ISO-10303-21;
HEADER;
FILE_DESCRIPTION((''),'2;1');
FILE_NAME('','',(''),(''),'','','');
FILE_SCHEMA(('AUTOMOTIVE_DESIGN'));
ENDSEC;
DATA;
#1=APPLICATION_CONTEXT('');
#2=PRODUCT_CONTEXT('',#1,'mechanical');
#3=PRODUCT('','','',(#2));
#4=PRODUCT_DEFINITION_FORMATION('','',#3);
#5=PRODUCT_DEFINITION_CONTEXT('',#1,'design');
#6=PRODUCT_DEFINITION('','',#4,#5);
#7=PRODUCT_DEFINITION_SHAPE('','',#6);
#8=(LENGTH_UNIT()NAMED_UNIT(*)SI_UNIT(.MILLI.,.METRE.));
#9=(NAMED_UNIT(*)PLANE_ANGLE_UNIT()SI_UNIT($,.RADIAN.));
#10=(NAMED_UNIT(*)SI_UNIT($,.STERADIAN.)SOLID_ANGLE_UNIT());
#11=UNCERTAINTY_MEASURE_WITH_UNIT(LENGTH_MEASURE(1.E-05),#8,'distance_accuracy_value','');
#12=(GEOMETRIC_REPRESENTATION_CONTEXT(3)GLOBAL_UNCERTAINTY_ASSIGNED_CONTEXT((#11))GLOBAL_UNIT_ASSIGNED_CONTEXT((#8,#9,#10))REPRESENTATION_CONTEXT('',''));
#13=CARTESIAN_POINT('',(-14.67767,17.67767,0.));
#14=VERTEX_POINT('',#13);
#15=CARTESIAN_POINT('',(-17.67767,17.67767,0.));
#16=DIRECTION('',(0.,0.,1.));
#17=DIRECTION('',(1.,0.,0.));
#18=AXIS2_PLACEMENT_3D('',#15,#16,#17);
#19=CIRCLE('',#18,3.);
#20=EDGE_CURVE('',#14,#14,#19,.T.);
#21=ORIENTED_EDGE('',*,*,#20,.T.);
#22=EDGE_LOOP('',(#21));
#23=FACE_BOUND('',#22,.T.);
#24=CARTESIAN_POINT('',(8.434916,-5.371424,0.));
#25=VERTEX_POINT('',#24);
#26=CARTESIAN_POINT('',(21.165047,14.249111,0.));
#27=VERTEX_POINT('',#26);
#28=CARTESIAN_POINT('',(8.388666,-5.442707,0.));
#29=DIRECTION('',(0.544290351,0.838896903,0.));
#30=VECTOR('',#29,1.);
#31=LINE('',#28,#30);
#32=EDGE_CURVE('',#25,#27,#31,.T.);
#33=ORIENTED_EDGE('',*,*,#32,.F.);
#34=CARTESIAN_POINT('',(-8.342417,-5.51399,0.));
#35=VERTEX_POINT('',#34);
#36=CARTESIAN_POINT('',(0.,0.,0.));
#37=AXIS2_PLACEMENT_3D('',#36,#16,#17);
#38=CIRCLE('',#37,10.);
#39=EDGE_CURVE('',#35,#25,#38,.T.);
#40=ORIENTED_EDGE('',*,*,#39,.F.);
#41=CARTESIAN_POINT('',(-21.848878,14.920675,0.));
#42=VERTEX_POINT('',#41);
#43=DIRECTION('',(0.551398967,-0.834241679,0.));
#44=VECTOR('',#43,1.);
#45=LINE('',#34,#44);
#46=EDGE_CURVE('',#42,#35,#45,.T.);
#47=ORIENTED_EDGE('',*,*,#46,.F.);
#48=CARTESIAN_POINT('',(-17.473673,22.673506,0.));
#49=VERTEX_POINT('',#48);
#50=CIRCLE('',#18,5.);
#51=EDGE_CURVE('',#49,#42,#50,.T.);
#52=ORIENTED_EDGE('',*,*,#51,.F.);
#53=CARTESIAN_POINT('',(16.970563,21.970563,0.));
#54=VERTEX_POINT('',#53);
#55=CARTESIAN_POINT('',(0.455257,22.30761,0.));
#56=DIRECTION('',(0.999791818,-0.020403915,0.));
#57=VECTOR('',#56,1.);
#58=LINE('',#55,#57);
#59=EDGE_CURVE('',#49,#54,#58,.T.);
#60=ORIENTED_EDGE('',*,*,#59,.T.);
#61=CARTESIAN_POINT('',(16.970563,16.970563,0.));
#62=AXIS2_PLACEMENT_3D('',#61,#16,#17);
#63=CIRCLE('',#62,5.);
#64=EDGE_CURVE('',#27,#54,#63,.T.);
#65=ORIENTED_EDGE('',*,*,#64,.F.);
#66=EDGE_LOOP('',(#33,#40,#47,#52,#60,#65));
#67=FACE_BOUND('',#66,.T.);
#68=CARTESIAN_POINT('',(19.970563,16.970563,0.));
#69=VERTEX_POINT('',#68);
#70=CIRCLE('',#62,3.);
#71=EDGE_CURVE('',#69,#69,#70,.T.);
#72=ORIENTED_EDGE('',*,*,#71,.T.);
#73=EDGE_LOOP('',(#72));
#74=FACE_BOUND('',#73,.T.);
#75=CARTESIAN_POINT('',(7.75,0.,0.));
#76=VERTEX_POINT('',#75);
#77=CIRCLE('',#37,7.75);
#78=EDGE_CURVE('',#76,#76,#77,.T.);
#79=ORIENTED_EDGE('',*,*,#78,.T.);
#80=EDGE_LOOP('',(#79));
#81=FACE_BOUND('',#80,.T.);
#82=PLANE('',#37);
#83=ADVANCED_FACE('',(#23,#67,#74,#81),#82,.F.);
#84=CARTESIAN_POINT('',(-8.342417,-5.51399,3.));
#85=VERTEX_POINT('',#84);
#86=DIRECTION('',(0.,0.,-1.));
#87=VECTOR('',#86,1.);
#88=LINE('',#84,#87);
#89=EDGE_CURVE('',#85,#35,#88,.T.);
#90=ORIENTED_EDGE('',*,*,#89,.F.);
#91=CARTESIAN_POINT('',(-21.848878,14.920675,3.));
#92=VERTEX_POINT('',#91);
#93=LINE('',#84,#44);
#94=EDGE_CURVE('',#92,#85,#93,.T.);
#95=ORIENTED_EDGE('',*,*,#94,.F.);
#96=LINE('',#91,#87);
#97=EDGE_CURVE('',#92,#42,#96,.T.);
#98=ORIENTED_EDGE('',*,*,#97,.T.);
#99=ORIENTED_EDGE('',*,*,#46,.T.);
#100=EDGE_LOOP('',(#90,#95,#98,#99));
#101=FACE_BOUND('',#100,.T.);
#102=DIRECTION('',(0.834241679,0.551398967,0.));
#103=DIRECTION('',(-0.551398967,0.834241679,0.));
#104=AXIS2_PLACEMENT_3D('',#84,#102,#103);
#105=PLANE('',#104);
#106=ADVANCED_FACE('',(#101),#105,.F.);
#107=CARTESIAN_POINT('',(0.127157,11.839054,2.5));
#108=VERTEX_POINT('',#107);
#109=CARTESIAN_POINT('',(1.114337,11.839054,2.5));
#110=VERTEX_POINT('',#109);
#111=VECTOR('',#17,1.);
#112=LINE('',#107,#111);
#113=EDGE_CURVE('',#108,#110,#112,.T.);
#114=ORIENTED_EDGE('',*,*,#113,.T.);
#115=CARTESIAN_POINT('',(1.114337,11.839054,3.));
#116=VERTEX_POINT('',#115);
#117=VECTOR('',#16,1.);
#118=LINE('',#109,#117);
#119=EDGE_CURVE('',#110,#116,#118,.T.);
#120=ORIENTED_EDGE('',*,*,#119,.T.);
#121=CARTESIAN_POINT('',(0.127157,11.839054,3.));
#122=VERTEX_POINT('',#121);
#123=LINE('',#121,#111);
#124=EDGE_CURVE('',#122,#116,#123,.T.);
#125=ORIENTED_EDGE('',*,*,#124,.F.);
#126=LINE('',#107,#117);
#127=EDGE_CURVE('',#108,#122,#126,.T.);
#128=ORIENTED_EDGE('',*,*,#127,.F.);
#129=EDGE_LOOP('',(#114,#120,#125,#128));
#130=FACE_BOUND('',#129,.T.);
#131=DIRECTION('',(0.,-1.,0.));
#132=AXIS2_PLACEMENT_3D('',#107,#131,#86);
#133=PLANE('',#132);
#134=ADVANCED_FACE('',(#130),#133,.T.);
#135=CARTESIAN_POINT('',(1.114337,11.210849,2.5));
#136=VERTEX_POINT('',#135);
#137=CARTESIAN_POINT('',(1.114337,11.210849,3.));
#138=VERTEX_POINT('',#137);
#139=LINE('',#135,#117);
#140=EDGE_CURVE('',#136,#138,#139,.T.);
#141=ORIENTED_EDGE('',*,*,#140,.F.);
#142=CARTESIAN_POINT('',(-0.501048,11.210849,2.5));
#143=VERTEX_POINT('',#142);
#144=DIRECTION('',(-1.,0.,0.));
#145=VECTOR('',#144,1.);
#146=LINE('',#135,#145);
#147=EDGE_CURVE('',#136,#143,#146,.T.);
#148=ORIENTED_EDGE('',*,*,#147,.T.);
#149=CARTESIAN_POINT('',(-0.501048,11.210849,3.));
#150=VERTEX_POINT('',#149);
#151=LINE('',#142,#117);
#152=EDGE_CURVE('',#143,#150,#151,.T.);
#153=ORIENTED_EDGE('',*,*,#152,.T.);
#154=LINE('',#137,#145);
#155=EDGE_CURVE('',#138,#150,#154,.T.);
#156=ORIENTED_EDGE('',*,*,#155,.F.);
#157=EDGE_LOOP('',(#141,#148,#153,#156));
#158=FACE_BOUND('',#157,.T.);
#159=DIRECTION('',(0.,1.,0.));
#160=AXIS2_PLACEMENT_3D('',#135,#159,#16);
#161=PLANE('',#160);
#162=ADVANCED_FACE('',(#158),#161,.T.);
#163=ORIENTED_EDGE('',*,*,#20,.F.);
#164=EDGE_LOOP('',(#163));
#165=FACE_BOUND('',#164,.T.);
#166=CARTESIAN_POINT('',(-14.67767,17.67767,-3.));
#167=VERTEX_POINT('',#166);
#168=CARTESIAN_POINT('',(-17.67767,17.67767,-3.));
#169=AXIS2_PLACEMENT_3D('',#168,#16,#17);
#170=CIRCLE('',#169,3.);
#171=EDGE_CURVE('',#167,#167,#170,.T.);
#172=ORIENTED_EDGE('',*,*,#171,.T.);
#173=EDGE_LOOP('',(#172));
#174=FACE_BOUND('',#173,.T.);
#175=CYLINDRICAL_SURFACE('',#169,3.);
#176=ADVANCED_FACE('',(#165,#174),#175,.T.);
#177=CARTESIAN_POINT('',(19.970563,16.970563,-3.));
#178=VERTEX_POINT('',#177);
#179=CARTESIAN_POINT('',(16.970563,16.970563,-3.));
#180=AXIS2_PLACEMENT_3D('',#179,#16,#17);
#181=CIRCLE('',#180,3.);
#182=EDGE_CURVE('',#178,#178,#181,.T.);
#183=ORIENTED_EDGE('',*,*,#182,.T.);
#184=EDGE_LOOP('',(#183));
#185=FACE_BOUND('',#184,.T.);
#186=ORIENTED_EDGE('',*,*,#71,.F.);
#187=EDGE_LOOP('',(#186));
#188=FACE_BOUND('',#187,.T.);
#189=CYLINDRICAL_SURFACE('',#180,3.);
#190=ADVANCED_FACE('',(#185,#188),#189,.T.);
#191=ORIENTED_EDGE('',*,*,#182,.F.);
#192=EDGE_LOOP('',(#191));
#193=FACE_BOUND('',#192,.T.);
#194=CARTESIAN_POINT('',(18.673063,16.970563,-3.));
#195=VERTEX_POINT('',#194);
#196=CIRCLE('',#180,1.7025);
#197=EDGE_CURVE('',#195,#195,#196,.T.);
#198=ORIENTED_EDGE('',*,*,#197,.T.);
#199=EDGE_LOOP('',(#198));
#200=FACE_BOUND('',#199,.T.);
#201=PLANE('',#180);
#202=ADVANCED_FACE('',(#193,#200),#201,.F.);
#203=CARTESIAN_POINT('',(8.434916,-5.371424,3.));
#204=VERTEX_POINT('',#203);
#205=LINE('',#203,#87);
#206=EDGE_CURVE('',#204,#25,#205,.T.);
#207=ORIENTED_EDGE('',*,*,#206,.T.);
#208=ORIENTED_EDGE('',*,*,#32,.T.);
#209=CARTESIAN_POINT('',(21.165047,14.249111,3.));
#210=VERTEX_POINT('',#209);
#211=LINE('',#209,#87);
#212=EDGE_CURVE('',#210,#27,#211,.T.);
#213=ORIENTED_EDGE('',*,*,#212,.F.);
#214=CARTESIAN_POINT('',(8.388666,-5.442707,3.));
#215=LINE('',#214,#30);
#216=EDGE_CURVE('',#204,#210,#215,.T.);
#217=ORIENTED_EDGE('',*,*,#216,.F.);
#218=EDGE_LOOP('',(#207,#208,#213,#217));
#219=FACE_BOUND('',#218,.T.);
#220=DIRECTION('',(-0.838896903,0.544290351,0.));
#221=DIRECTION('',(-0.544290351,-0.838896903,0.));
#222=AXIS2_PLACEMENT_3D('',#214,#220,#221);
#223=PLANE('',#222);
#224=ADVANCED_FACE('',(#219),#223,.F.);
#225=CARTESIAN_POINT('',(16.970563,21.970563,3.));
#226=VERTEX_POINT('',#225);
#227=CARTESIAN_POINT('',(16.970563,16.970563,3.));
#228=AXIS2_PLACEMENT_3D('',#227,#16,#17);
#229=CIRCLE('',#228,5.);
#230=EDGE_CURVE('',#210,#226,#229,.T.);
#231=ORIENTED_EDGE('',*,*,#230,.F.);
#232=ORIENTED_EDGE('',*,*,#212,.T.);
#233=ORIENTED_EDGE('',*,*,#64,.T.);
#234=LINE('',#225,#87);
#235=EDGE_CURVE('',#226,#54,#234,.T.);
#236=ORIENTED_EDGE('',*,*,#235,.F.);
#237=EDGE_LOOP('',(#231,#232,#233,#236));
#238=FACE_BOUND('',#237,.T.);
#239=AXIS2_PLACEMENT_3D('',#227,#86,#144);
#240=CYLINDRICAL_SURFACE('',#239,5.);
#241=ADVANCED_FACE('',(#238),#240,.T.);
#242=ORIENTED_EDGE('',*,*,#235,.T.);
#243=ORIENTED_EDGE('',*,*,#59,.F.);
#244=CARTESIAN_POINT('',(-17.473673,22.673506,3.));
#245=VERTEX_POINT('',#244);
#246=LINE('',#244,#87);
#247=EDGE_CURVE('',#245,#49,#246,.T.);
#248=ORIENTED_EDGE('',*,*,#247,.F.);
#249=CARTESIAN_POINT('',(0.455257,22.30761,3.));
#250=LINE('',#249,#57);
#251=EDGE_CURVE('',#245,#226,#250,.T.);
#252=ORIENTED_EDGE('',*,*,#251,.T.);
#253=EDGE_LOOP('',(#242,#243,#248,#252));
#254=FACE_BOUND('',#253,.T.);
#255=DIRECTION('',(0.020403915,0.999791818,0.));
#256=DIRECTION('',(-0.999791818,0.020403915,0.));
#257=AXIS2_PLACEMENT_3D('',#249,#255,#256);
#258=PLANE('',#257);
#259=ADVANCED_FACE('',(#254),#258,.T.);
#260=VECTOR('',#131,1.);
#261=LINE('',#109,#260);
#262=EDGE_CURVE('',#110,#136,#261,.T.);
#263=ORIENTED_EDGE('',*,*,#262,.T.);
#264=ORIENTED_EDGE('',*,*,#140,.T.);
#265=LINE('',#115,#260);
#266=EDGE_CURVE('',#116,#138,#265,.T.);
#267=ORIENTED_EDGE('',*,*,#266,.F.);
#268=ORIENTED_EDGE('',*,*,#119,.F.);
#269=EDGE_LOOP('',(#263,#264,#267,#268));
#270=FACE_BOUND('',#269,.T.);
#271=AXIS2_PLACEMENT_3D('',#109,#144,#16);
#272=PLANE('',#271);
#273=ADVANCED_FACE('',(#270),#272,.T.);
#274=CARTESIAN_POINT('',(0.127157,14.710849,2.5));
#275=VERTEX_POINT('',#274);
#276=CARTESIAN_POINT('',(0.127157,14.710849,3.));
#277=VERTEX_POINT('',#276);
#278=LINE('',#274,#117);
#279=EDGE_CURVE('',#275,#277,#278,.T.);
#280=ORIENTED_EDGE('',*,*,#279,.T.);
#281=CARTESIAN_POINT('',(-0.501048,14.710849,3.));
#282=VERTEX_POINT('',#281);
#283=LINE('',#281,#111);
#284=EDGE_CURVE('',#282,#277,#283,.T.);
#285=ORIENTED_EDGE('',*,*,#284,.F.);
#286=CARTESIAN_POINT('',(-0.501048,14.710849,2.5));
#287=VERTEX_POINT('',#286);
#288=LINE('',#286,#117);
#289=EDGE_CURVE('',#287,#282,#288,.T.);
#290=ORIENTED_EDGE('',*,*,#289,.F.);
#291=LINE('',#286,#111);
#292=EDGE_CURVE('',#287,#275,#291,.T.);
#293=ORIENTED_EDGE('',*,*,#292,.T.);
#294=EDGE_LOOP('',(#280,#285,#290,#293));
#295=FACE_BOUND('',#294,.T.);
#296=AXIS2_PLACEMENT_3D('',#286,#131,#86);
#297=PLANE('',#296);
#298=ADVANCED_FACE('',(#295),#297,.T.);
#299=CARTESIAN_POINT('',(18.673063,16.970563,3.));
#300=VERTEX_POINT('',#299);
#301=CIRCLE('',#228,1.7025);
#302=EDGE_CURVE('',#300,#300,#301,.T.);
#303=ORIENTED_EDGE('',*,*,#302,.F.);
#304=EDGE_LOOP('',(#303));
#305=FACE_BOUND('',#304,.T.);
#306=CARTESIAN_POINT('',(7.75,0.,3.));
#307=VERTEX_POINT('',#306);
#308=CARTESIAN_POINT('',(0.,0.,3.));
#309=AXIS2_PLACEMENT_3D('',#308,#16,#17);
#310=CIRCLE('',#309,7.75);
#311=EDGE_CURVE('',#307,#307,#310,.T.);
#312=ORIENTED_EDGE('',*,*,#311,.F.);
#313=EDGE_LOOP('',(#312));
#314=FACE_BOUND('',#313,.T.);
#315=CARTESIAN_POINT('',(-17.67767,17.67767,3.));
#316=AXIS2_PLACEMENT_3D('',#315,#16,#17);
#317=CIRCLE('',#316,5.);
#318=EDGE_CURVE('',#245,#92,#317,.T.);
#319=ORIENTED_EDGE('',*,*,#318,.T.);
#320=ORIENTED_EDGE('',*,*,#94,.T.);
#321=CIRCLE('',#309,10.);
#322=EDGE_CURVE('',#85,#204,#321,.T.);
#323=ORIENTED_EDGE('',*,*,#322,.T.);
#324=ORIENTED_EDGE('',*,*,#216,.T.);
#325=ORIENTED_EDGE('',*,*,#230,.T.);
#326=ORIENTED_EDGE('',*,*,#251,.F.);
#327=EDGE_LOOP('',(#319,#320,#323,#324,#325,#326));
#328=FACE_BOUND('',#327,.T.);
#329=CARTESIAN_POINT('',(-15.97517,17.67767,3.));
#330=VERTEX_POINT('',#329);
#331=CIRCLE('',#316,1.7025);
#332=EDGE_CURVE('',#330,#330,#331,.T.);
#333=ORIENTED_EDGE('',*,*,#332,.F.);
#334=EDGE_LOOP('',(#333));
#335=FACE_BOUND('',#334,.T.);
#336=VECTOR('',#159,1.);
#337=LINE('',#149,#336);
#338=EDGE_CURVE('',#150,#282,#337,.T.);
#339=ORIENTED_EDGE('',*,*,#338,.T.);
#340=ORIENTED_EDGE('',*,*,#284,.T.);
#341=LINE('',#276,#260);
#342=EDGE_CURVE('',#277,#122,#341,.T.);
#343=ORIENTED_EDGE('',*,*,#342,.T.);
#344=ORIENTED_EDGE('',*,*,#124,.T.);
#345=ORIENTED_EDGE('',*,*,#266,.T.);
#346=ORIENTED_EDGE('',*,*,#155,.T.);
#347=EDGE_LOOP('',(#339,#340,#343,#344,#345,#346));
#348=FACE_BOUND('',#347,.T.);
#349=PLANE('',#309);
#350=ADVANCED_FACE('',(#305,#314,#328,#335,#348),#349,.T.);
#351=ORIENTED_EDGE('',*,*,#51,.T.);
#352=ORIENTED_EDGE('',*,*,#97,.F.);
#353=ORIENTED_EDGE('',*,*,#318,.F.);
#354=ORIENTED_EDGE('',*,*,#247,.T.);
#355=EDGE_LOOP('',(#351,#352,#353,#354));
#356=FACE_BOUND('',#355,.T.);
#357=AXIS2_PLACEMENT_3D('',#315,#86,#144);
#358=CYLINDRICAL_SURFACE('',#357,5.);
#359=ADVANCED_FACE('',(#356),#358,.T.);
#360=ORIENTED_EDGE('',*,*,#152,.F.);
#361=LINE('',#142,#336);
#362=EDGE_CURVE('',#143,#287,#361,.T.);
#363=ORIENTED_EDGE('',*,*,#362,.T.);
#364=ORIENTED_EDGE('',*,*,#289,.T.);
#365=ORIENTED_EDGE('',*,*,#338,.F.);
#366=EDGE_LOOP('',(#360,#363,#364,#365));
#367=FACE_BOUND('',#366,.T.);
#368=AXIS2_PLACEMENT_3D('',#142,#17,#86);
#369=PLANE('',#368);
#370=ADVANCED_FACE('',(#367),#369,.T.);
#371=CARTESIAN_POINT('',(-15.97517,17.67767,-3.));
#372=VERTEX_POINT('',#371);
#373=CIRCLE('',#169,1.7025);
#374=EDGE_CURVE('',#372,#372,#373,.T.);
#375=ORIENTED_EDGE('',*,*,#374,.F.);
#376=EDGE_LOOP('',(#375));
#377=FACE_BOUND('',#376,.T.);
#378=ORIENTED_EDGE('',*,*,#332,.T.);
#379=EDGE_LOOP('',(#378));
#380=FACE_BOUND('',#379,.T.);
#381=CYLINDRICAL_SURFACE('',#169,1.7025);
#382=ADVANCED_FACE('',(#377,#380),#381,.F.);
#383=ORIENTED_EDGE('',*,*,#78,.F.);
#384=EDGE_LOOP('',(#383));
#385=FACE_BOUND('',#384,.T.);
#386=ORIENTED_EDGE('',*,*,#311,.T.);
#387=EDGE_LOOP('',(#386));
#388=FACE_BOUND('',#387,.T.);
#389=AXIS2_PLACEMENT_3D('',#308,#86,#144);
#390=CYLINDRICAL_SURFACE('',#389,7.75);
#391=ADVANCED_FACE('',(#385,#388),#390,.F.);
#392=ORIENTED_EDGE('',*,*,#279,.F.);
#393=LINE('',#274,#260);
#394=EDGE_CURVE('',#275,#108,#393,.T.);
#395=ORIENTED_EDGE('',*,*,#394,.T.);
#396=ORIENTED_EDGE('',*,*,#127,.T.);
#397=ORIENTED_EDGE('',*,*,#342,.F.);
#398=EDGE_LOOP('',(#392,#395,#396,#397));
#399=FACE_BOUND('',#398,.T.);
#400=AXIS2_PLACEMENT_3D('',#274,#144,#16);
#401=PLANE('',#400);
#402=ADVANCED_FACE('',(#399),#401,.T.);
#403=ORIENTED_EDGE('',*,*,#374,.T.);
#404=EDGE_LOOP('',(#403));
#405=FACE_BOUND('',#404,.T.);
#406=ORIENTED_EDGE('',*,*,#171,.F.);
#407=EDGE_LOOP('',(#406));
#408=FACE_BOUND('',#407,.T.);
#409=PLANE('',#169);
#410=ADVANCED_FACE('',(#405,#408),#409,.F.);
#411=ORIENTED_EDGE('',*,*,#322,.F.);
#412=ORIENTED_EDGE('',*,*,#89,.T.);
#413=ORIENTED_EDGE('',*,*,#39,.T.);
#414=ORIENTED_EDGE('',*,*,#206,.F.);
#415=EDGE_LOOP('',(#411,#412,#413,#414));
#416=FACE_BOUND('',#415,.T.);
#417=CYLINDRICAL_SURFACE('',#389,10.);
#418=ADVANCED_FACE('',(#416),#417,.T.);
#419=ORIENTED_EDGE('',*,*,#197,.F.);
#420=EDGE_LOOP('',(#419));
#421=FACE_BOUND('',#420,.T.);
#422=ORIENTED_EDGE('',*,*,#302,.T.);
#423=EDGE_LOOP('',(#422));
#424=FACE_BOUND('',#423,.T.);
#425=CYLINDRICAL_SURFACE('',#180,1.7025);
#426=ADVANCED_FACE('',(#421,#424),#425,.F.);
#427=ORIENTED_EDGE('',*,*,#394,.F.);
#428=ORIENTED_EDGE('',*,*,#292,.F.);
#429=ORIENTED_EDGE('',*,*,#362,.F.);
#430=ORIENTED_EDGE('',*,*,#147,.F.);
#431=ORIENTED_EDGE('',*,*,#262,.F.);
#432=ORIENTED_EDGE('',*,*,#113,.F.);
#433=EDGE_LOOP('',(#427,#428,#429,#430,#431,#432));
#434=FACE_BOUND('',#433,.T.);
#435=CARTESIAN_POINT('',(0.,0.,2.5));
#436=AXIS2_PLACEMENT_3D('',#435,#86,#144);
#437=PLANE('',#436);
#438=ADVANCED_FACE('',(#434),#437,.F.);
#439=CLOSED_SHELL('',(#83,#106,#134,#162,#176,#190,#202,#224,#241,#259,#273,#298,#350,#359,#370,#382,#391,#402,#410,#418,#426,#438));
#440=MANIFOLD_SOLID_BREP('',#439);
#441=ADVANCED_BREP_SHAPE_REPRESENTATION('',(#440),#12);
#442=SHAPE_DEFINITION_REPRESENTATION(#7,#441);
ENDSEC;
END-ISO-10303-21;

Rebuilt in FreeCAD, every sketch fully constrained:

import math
import FreeCAD as App
import Part
import Sketcher

V = App.Vector
Q = App.Units.Quantity


def add_polygon(sketch, points):
    """Adds a closed chain of lines whose ends are joined by coincident constraints."""
    first, n = sketch.GeometryCount, len(points)
    for a, b in zip(points, points[1:] + points[:1]):
        sketch.addGeometry(Part.LineSegment(App.Vector(*a, 0), App.Vector(*b, 0)), False)
    for i in range(n):
        sketch.addConstraint(Sketcher.Constraint("Coincident", first + i, 2, first + (i + 1) % n, 1))

doc = App.newDocument("Part")
body = doc.addObject("PartDesign::Body", "Body")

# Sketch on XY plane
sketch1 = body.newObject("Sketcher::SketchObject", "Sketch")
sketch1.AttachmentSupport = (doc.getObject("XY_Plane"), [""])
sketch1.MapMode = "FlatFace"
sketch1.addGeometry([
    Part.LineSegment(V(8.4, -5.4, 0), V(21.2, 14.2, 0)),  # 0
    Part.ArcOfCircle(Part.Circle(V(17, 17, 0), V(0, 0, 1), 5), math.radians(-33), math.radians(90)),  # 1
    Part.LineSegment(V(17, 22, 0), V(-17.5, 22.7, 0)),  # 2
    Part.ArcOfCircle(Part.Circle(V(-17.7, 17.7, 0), V(0, 0, 1), 5), math.radians(88), math.radians(213)),  # 3
    Part.LineSegment(V(-21.8, 14.9, 0), V(-8.3, -5.5, 0)),  # 4
    Part.ArcOfCircle(Part.Circle(V(0, 0, 0), V(0, 0, 1), 10), math.radians(-147), math.radians(-32)),  # 5
    Part.Circle(V(0, 0, 0), V(0, 0, 1), 7.8),  # 6
    Part.Circle(V(-17.7, 17.7, 0), V(0, 0, 1), 3),  # 7
    Part.Circle(V(17, 17, 0), V(0, 0, 1), 3),  # 8
], False)
sketch1.addConstraint([
    Sketcher.Constraint("Tangent", 0, 2, 1, 1),
    Sketcher.Constraint("Coincident", 1, 2, 2, 1),
    Sketcher.Constraint("Coincident", 2, 2, 3, 1),
    Sketcher.Constraint("Tangent", 3, 2, 4, 1),
    Sketcher.Constraint("Tangent", 4, 2, 5, 1),
    Sketcher.Constraint("Coincident", 5, 2, 0, 1),
    Sketcher.Constraint("Coincident", 5, 3, -1, 1),
    Sketcher.Constraint("Coincident", 6, 3, -1, 1),
    Sketcher.Constraint("Coincident", 7, 3, 3, 3),
    Sketcher.Constraint("Coincident", 8, 3, 1, 3),
    Sketcher.Constraint("Equal", 1, 3),
    Sketcher.Constraint("Equal", 7, 8),
    Sketcher.Constraint("Vertical", 8, 3, 1, 2),
    Sketcher.Constraint("Diameter", 7, Q("6 mm")),
    Sketcher.Constraint("Radius", 1, Q("5 mm")),
    Sketcher.Constraint("Radius", 5, Q("10 mm")),
    Sketcher.Constraint("Diameter", 6, Q("15.5 mm")),
    Sketcher.Constraint("DistanceX", 3, 3, -1, 1, Q("17.67767 mm")),
    Sketcher.Constraint("DistanceY", -1, 1, 3, 3, Q("17.67767 mm")),
    Sketcher.Constraint("DistanceY", -1, 1, 0, 2, Q("14.249111 mm")),
    Sketcher.Constraint("DistanceY", 0, 2, 1, 3, Q("2.721452 mm")),
    Sketcher.Constraint("DistanceY", 3, 2, 2, 2, Q("7.752832 mm")),
    Sketcher.Constraint("DistanceX", 5, 2, 0, 2, Q("12.730132 mm")),
])
pad1 = body.newObject("PartDesign::Pad", "Pad")
pad1.Profile = sketch1
pad1.Length = 3

# Sketch on XY plane
sketch2 = body.newObject("Sketcher::SketchObject", "Sketch001")
sketch2.AttachmentSupport = (doc.getObject("XY_Plane"), [""])
sketch2.MapMode = "FlatFace"
sketch2.AttachmentOffset = App.Placement(V(0, 0, -3), App.Rotation())
sketch2.addGeometry([
    Part.Circle(V(-17.7, 17.7, 0), V(0, 0, 1), 3),
    Part.Circle(V(-17.7, 17.7, 0), V(0, 0, 1), 1.7),
    Part.Circle(V(17, 17, 0), V(0, 0, 1), 3),
    Part.Circle(V(17, 17, 0), V(0, 0, 1), 1.7),
], False)
sketch2.addConstraint([
    Sketcher.Constraint("Coincident", 1, 3, 0, 3),
    Sketcher.Constraint("Coincident", 3, 3, 2, 3),
    Sketcher.Constraint("Equal", 0, 2),
    Sketcher.Constraint("Equal", 1, 3),
    Sketcher.Constraint("Diameter", 0, Q("6 mm")),
    Sketcher.Constraint("Diameter", 1, Q("3.405 mm")),
    Sketcher.Constraint("DistanceX", 0, 3, -1, 1, Q("17.67767 mm")),
    Sketcher.Constraint("DistanceY", -1, 1, 0, 3, Q("17.67767 mm")),
    Sketcher.Constraint("DistanceX", -1, 1, 2, 3, Q("16.970563 mm")),
    Sketcher.Constraint("DistanceY", -1, 1, 2, 3, Q("16.970563 mm")),
])
pad2 = body.newObject("PartDesign::Pad", "Pad001")
pad2.Profile = sketch2
pad2.Length = 6

# Sketch on XY plane
sketch3 = body.newObject("Sketcher::SketchObject", "Sketch002")
sketch3.AttachmentSupport = (doc.getObject("XY_Plane"), [""])
sketch3.MapMode = "FlatFace"
sketch3.AttachmentOffset = App.Placement(V(0, 0, 3), App.Rotation())
add_polygon(sketch3, [(0.1, 14.7), (-0.5, 14.7), (-0.5, 11.2), (1.1, 11.2), (1.1, 11.8), (0.1, 11.8)])  # lines 0-5
sketch3.addConstraint([
    Sketcher.Constraint("Horizontal", 0),
    Sketcher.Constraint("Vertical", 1),
    Sketcher.Constraint("Horizontal", 2),
    Sketcher.Constraint("Vertical", 3),
    Sketcher.Constraint("Horizontal", 4),
    Sketcher.Constraint("Vertical", 5),
    Sketcher.Constraint("Equal", 0, 3),
    Sketcher.Constraint("DistanceY", 1, 2, 1, 1, Q("3.5 mm")),
    Sketcher.Constraint("DistanceX", 4, 2, 4, 1, Q("0.987179 mm")),
    Sketcher.Constraint("DistanceX", 0, 2, 0, 1, Q("0.628205 mm")),
    Sketcher.Constraint("DistanceY", -1, 1, 0, 2, Q("14.710849 mm")),
    Sketcher.Constraint("DistanceX", 0, 2, -1, 1, Q("0.501048 mm")),
])
pocket1 = body.newObject("PartDesign::Pocket", "Pocket")
pocket1.Profile = sketch3
pocket1.Length = 0.5

doc.recompute()
